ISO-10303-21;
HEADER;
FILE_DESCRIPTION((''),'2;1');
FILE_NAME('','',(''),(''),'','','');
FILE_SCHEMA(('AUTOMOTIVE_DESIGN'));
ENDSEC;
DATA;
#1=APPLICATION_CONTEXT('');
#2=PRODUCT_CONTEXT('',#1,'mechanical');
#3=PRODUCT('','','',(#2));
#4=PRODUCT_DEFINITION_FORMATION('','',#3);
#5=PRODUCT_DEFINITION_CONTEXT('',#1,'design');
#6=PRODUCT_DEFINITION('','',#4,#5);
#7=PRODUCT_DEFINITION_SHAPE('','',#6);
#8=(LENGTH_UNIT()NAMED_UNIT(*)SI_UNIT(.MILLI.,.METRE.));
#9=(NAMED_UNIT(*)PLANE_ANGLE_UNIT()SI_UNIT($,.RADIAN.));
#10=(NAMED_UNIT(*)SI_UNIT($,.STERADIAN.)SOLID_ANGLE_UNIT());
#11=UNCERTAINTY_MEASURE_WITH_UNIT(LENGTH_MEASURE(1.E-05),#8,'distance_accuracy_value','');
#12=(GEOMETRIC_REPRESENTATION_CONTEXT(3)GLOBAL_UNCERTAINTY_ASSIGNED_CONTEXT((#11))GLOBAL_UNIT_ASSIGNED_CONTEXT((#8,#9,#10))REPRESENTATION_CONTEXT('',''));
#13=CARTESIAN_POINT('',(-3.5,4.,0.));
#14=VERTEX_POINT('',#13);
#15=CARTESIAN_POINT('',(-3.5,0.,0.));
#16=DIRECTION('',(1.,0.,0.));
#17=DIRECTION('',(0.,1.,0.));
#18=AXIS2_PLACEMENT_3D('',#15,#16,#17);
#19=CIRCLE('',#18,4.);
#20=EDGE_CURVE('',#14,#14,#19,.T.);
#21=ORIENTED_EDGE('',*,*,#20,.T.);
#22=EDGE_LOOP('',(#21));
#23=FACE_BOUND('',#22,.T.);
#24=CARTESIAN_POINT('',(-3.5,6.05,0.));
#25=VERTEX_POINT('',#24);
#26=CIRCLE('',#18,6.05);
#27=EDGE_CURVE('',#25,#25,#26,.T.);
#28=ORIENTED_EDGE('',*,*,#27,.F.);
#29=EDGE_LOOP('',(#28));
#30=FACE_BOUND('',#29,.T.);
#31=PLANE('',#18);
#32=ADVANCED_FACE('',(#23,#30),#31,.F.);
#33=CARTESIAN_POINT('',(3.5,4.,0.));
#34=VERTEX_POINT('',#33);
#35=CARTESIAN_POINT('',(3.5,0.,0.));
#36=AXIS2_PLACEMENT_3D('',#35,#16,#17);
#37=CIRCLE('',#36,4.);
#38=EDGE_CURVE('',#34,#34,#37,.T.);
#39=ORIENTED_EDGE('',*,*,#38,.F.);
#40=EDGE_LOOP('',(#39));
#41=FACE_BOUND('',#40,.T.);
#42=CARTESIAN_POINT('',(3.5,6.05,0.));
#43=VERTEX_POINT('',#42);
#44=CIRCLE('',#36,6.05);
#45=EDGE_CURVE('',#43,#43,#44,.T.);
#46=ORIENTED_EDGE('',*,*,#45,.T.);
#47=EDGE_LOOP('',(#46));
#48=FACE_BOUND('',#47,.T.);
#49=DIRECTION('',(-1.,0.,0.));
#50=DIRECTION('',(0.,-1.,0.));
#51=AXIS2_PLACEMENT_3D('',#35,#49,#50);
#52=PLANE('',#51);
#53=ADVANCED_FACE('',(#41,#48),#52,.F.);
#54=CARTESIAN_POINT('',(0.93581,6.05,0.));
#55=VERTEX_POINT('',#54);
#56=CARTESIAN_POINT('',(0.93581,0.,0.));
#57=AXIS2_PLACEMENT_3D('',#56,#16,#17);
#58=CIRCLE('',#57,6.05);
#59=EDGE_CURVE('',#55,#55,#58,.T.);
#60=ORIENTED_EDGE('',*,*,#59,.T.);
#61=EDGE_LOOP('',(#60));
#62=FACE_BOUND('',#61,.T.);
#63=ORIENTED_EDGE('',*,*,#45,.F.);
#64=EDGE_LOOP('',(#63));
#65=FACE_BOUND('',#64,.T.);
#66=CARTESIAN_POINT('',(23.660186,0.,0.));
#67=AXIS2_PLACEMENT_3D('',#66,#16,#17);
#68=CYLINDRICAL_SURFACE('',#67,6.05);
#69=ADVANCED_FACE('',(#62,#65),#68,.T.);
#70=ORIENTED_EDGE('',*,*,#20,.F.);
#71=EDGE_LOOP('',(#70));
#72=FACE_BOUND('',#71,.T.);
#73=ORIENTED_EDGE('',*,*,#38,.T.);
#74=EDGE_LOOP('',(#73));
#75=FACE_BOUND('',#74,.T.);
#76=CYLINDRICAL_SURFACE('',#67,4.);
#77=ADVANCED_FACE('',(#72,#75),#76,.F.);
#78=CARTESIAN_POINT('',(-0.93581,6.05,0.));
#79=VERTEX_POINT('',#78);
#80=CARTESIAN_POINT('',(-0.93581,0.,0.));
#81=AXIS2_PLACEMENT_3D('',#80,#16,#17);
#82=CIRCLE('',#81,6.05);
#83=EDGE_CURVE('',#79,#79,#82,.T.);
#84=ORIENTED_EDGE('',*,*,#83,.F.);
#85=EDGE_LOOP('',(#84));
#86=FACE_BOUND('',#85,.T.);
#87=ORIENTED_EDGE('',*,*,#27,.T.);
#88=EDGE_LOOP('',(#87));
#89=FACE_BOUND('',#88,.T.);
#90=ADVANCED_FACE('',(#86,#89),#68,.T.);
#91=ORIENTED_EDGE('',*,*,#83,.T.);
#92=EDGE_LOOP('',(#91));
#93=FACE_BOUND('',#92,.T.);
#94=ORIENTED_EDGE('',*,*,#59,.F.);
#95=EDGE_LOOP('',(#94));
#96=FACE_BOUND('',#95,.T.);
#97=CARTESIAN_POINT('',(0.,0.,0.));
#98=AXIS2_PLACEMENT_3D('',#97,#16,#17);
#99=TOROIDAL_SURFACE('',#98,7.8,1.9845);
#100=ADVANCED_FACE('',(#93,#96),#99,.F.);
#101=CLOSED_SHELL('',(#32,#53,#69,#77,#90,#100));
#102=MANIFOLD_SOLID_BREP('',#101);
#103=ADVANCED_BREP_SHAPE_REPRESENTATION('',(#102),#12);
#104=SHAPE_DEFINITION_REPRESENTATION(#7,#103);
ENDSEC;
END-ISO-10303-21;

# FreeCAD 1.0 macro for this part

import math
import FreeCAD as App
import Part
import Sketcher
from FreeCAD import Vector
Q = App.Units.Quantity

doc = App.newDocument("Part")
body = doc.addObject("PartDesign::Body", "Body")

sketch1 = body.newObject("Sketcher::SketchObject", "Sketch")
sketch1.AttachmentSupport = (doc.getObject("XY_Plane"), [""])
sketch1.MapMode = "FlatFace"
sketch1.addGeometry(Part.ArcOfCircle(Part.Circle(Vector(0, 7.8, 0), Vector(0, 0, 1), 2), math.radians(-118), math.radians(-62)), False)
sketch1.addGeometry(Part.LineSegment(Vector(-0.9, 6, 0), Vector(-3.5, 6, 0)), False)
sketch1.addGeometry(Part.LineSegment(Vector(-3.5, 6, 0), Vector(-3.5, 4, 0)), False)
sketch1.addGeometry(Part.LineSegment(Vector(-3.5, 4, 0), Vector(3.5, 4, 0)), False)
sketch1.addGeometry(Part.LineSegment(Vector(3.5, 4, 0), Vector(3.5, 6, 0)), False)
sketch1.addGeometry(Part.LineSegment(Vector(3.5, 6, 0), Vector(0.9, 6, 0)), False)
sketch1.addConstraint(Sketcher.Constraint("Coincident", 0, 1, 1, 1))
sketch1.addConstraint(Sketcher.Constraint("Coincident", 1, 2, 2, 1))
sketch1.addConstraint(Sketcher.Constraint("Coincident", 2, 2, 3, 1))
sketch1.addConstraint(Sketcher.Constraint("Coincident", 3, 2, 4, 1))
sketch1.addConstraint(Sketcher.Constraint("Coincident", 4, 2, 5, 1))
sketch1.addConstraint(Sketcher.Constraint("Coincident", 5, 2, 0, 2))
sketch1.addConstraint(Sketcher.Constraint("Horizontal", 1))
sketch1.addConstraint(Sketcher.Constraint("Vertical", 2))
sketch1.addConstraint(Sketcher.Constraint("Horizontal", 3))
sketch1.addConstraint(Sketcher.Constraint("Vertical", 4))
sketch1.addConstraint(Sketcher.Constraint("Horizontal", 5))
sketch1.addConstraint(Sketcher.Constraint("Symmetric", 1, 2, 4, 2, -2))
sketch1.addConstraint(Sketcher.Constraint("PointOnObject", 0, 3, -2))
sketch1.addConstraint(Sketcher.Constraint("DistanceX", 3, 1, 3, 2, Q("7 mm")))
sketch1.addConstraint(Sketcher.Constraint("DistanceY", -1, 1, 2, 2, Q("4 mm")))
sketch1.addConstraint(Sketcher.Constraint("DistanceY", 2, 2, 2, 1, Q("2.05 mm")))
sketch1.addConstraint(Sketcher.Constraint("DistanceY", -1, 1, 0, 3, Q("7.8 mm")))
sketch1.addConstraint(Sketcher.Constraint("Radius", 0, Q("1.9845 mm")))
revolution = body.newObject("PartDesign::Revolution", "Revolution")
revolution.Profile = sketch1
revolution.ReferenceAxis = (sketch1, ["H_Axis"])
revolution.Angle = 360

doc.recompute()
